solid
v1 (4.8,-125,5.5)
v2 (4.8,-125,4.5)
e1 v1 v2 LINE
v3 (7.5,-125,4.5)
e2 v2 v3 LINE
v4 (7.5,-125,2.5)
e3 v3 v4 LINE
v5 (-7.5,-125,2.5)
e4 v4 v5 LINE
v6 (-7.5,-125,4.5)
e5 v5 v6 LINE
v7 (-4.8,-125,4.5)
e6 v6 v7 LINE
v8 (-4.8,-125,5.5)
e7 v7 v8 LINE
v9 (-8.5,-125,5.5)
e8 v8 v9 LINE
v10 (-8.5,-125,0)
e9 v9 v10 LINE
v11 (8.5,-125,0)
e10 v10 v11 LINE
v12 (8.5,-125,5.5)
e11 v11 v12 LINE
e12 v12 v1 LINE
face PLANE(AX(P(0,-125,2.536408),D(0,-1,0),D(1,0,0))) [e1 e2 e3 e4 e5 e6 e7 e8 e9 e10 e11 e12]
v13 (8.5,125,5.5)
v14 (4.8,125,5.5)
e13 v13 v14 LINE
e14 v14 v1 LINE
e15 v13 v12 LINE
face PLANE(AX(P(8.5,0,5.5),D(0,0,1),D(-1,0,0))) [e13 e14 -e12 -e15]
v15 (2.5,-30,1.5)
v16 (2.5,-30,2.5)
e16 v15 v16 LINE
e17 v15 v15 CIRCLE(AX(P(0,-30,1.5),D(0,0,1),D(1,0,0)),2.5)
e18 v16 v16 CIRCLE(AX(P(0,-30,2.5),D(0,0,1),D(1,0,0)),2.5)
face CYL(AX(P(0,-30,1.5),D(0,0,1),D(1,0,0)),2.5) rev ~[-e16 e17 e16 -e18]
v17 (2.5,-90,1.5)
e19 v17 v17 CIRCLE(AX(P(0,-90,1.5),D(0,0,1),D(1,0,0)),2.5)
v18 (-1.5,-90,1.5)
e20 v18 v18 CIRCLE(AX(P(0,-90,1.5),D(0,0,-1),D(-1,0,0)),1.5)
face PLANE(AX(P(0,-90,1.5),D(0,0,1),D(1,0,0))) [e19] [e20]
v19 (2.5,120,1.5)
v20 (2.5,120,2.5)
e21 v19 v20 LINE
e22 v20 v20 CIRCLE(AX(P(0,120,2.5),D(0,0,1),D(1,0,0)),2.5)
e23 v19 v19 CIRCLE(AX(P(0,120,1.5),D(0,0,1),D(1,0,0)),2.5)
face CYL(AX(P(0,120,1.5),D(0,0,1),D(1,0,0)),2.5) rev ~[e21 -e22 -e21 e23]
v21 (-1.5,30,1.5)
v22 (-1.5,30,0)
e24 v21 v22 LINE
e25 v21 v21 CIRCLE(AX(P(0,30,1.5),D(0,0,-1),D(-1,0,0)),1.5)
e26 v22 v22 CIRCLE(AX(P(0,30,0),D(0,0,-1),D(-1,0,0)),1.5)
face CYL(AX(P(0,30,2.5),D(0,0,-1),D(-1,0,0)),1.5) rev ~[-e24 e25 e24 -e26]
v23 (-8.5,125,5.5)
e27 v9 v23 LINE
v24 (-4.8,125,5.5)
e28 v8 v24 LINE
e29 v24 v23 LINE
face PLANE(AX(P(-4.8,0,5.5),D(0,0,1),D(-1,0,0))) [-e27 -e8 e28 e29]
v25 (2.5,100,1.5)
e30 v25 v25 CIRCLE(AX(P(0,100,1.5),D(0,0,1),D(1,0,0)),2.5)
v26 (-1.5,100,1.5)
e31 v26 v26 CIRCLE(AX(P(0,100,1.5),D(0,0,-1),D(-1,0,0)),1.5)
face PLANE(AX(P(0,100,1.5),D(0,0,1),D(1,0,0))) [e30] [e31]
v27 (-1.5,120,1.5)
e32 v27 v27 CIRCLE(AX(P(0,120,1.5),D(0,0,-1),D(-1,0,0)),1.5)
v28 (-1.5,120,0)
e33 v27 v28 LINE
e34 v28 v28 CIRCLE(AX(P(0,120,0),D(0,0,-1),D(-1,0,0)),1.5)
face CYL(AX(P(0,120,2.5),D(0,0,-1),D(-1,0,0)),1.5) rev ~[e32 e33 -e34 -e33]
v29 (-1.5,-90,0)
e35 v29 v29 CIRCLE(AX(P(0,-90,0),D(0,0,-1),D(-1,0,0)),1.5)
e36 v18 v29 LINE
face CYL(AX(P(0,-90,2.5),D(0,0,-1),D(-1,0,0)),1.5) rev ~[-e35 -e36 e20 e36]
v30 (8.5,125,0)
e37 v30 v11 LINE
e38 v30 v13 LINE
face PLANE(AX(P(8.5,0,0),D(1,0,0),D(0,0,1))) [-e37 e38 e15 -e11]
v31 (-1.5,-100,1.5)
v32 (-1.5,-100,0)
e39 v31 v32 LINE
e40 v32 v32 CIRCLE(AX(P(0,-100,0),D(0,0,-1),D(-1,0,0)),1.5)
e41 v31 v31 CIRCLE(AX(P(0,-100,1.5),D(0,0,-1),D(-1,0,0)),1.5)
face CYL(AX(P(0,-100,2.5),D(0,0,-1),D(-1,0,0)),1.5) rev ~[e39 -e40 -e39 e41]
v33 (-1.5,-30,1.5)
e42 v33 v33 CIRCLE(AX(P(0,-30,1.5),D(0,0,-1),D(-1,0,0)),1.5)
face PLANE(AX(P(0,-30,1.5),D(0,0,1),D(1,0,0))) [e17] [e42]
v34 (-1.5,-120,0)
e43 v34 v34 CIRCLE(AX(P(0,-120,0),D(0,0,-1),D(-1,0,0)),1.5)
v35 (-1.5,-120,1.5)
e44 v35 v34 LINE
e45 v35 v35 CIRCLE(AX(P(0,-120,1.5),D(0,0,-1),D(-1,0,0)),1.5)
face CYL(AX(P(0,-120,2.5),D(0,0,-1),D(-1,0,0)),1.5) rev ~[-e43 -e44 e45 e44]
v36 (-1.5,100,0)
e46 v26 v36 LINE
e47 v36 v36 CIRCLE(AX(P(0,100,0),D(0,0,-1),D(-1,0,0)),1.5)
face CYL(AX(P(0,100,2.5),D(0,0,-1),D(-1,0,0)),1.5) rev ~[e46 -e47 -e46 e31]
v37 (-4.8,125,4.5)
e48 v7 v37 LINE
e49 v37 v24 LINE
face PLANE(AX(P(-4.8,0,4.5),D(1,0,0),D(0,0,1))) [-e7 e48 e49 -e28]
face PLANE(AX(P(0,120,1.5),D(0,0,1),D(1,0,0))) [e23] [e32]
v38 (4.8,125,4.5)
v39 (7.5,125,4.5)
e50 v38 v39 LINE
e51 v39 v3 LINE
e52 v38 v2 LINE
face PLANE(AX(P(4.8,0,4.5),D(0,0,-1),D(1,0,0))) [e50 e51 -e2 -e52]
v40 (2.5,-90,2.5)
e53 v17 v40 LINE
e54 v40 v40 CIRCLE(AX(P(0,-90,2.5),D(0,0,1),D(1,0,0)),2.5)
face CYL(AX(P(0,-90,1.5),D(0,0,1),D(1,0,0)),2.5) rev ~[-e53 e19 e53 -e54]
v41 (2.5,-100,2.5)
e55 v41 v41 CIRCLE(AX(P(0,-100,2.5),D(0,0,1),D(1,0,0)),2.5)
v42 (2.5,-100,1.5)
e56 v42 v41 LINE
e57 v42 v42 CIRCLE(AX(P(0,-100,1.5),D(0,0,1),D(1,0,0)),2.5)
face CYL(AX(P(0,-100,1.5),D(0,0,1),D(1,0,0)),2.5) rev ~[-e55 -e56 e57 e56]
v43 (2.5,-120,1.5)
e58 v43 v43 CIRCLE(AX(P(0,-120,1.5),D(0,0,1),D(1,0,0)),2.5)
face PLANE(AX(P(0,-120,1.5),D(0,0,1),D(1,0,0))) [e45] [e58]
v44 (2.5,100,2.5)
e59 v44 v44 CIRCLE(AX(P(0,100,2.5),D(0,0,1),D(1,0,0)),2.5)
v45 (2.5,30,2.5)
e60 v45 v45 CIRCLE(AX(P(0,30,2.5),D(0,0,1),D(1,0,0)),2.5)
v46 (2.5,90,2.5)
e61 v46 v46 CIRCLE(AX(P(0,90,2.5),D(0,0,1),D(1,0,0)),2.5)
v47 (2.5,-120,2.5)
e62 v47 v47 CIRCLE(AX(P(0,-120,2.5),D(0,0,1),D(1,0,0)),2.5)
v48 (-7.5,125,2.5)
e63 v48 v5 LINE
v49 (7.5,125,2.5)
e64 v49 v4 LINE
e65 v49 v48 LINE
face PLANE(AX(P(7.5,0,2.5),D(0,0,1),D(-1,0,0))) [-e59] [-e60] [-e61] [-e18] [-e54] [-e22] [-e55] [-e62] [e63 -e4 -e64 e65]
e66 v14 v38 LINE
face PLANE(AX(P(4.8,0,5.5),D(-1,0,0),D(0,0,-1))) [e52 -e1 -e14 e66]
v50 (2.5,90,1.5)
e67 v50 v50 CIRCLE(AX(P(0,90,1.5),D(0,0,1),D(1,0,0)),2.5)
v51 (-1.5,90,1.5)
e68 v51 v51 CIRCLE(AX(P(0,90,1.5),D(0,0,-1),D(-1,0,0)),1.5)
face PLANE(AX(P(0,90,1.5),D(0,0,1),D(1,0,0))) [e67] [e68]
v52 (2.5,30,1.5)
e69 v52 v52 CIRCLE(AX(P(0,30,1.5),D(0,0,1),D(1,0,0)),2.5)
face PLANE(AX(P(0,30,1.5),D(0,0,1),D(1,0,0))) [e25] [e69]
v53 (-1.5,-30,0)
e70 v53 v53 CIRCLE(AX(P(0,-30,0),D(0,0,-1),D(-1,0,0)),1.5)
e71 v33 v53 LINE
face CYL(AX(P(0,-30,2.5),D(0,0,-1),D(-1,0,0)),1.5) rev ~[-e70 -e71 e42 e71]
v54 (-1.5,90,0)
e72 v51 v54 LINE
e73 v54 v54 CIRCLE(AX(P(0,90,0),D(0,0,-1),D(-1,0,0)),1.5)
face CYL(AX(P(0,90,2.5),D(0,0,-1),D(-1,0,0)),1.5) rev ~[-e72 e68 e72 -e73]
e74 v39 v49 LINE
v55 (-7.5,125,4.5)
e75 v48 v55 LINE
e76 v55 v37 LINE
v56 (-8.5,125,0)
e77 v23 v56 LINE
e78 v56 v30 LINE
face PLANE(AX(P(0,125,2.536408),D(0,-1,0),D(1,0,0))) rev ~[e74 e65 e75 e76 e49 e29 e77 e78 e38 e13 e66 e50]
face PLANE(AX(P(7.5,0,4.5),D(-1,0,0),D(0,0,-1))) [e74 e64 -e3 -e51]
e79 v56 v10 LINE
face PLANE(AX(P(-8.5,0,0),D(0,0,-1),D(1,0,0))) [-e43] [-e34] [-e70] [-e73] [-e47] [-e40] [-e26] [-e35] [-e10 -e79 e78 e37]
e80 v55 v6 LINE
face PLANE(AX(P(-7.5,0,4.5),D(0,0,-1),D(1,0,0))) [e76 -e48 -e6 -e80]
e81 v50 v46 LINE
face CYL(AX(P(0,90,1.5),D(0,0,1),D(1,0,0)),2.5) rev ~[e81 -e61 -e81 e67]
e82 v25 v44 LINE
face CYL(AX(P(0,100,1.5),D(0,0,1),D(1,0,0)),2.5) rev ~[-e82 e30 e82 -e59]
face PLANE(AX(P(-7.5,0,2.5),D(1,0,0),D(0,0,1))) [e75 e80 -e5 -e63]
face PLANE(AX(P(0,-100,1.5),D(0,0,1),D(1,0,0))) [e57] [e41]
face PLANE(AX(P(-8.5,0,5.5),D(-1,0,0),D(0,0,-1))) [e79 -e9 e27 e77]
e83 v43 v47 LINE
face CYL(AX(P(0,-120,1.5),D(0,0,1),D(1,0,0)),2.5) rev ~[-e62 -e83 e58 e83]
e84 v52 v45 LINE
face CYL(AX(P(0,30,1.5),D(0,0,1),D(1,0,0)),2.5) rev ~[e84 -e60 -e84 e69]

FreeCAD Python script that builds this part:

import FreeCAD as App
import Part
import Sketcher

V = App.Vector
Q = App.Units.Quantity


def add_polygon(sketch, points):
    """Adds a closed chain of lines whose ends are joined by coincident constraints."""
    first, n = sketch.GeometryCount, len(points)
    for a, b in zip(points, points[1:] + points[:1]):
        sketch.addGeometry(Part.LineSegment(App.Vector(*a, 0), App.Vector(*b, 0)), False)
    for i in range(n):
        sketch.addConstraint(Sketcher.Constraint("Coincident", first + i, 2, first + (i + 1) % n, 1))

doc = App.newDocument("Part")
body = doc.addObject("PartDesign::Body", "Body")

# Sketch on XZ plane
sketch1 = body.newObject("Sketcher::SketchObject", "Sketch")
sketch1.AttachmentSupport = (doc.getObject("XZ_Plane"), [""])
sketch1.MapMode = "FlatFace"
add_polygon(sketch1, [(-8.5, 5.5), (-8.5, 0), (8.5, 0), (8.5, 5.5), (4.8, 5.5), (4.8, 4.5), (7.5, 4.5), (7.5, 2.5), (-7.5, 2.5), (-7.5, 4.5), (-4.8, 4.5), (-4.8, 5.5)])  # lines 0-11
sketch1.addConstraint(Sketcher.Constraint("Vertical", 0))
sketch1.addConstraint(Sketcher.Constraint("Horizontal", 1))
sketch1.addConstraint(Sketcher.Constraint("Vertical", 2))
sketch1.addConstraint(Sketcher.Constraint("Horizontal", 3))
sketch1.addConstraint(Sketcher.Constraint("Vertical", 4))
sketch1.addConstraint(Sketcher.Constraint("Horizontal", 5))
sketch1.addConstraint(Sketcher.Constraint("Vertical", 6))
sketch1.addConstraint(Sketcher.Constraint("Horizontal", 7))
sketch1.addConstraint(Sketcher.Constraint("Vertical", 8))
sketch1.addConstraint(Sketcher.Constraint("Horizontal", 9))
sketch1.addConstraint(Sketcher.Constraint("Vertical", 10))
sketch1.addConstraint(Sketcher.Constraint("Horizontal", 11))
sketch1.addConstraint(Sketcher.Constraint("Symmetric", 0, 2, 1, 2, -1, 1))
sketch1.addConstraint(Sketcher.Constraint("Symmetric", 5, 2, 8, 2, -2))
sketch1.addConstraint(Sketcher.Constraint("Symmetric", 3, 2, 10, 2, -2))
sketch1.addConstraint(Sketcher.Constraint("DistanceX", 1, 1, 1, 2, Q("17 mm")))
sketch1.addConstraint(Sketcher.Constraint("DistanceX", 7, 2, 7, 1, Q("15 mm")))
sketch1.addConstraint(Sketcher.Constraint("DistanceY", 4, 2, 4, 1, Q("1 mm")))
sketch1.addConstraint(Sketcher.Constraint("DistanceY", 6, 2, 6, 1, Q("2 mm")))
sketch1.addConstraint(Sketcher.Constraint("DistanceX", 3, 2, 3, 1, Q("3.7 mm")))
sketch1.addConstraint(Sketcher.Constraint("DistanceY", 0, 2, 0, 1, Q("5.5 mm")))
pad1 = body.newObject("PartDesign::Pad", "Pad")
pad1.Profile = sketch1
pad1.Type = "TwoLengths"
pad1.Length = 125
pad1.Length2 = 125

# Sketch on XY plane
sketch2 = body.newObject("Sketcher::SketchObject", "Sketch001")
sketch2.AttachmentSupport = (doc.getObject("XY_Plane"), [""])
sketch2.MapMode = "FlatFace"
sketch2.AttachmentOffset = App.Placement(V(0, 0, 2.5), App.Rotation())
sketch2.addGeometry(Part.Circle(V(0, -90, 0), V(0, 0, 1), 1.5), False)
sketch2.addGeometry(Part.Circle(V(0, -30, 0), V(0, 0, 1), 1.5), False)
sketch2.addGeometry(Part.Circle(V(0, 30, 0), V(0, 0, 1), 1.5), False)
sketch2.addGeometry(Part.Circle(V(0, 90, 0), V(0, 0, 1), 1.5), False)
sketch2.addGeometry(Part.Circle(V(0, 120, 0), V(0, 0, 1), 1.5), False)
sketch2.addGeometry(Part.Circle(V(0, 100, 0), V(0, 0, 1), 1.5), False)
sketch2.addGeometry(Part.Circle(V(0, -120, 0), V(0, 0, 1), 1.5), False)
sketch2.addGeometry(Part.Circle(V(0, -100, 0), V(0, 0, 1), 1.5), False)
sketch2.addConstraint(Sketcher.Constraint("Equal", 0, 1))
sketch2.addConstraint(Sketcher.Constraint("Equal", 1, 2))
sketch2.addConstraint(Sketcher.Constraint("Equal", 2, 3))
sketch2.addConstraint(Sketcher.Constraint("Equal", 3, 4))
sketch2.addConstraint(Sketcher.Constraint("Equal", 4, 5))
sketch2.addConstraint(Sketcher.Constraint("Equal", 5, 6))
sketch2.addConstraint(Sketcher.Constraint("Equal", 6, 7))
sketch2.addConstraint(Sketcher.Constraint("Symmetric", 1, 3, 2, 3, -1, 1))
sketch2.addConstraint(Sketcher.Constraint("Symmetric", 0, 3, 3, 3, -1, 1))
sketch2.addConstraint(Sketcher.Constraint("Symmetric", 4, 3, 6, 3, -1, 1))
sketch2.addConstraint(Sketcher.Constraint("Symmetric", 5, 3, 7, 3, -1, 1))
sketch2.addConstraint(Sketcher.Constraint("PointOnObject", 0, 3, -2))
sketch2.addConstraint(Sketcher.Constraint("PointOnObject", 1, 3, -2))
sketch2.addConstraint(Sketcher.Constraint("PointOnObject", 4, 3, -2))
sketch2.addConstraint(Sketcher.Constraint("PointOnObject", 5, 3, -2))
sketch2.addConstraint(Sketcher.Constraint("Diameter", 0, Q("3 mm")))
sketch2.addConstraint(Sketcher.Constraint("DistanceY", 0, 3, -1, 1, Q("90 mm")))
sketch2.addConstraint(Sketcher.Constraint("DistanceY", 1, 3, -1, 1, Q("30 mm")))
sketch2.addConstraint(Sketcher.Constraint("DistanceY", -1, 1, 4, 3, Q("120 mm")))
sketch2.addConstraint(Sketcher.Constraint("DistanceY", -1, 1, 5, 3, Q("100 mm")))
doc.recompute()
hole = body.newObject("PartDesign::Hole", "Hole")
hole.Profile = sketch2
hole.ThreadType = "None"
hole.Diameter = 3
hole.DepthType = "ThroughAll"
hole.HoleCutType = "Counterbore"
hole.HoleCutDiameter = 5
hole.HoleCutDepth = 1

doc.recompute()
